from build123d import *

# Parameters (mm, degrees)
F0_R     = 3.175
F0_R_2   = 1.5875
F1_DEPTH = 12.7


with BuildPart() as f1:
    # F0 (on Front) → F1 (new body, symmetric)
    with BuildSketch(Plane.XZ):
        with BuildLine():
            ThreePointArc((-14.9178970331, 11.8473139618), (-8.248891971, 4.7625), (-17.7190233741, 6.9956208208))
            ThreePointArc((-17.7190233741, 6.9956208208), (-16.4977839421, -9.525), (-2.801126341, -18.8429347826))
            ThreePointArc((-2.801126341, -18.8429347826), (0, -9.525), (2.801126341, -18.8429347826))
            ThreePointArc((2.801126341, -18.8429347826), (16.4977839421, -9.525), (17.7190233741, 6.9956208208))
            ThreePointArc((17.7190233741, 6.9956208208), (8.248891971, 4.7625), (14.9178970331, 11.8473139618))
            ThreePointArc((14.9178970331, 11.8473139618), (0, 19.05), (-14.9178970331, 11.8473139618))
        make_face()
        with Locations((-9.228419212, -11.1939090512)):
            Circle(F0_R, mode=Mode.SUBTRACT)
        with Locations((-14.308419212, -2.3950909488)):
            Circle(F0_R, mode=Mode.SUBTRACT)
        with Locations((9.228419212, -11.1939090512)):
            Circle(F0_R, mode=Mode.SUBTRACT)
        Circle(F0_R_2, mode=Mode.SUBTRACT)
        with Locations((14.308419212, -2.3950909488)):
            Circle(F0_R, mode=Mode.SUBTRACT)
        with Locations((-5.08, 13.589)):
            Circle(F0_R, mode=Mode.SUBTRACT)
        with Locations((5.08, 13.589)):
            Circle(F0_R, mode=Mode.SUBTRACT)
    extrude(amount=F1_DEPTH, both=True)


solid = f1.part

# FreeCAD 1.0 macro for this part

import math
import FreeCAD as App
import Part
import Sketcher

V = App.Vector
Q = App.Units.Quantity

doc = App.newDocument("Part")
body = doc.addObject("PartDesign::Body", "Body")

# Sketch on XZ plane
sketch1 = doc.addObject("Sketcher::SketchObject", "Sketch")
body.addObject(sketch1)
sketch1.AttachmentSupport = (doc.XZ_Plane, [""])
sketch1.MapMode = "FlatFace"
sketch1.addGeometry(Part.ArcOfCircle(Part.Circle(V(-12.6, 7.3, 0), V(0, 0, 1), 5.1), math.radians(-177), math.radians(117)), False)
sketch1.addGeometry(Part.ArcOfCircle(Part.Circle(V(0, 0, 0), V(0, 0, 1), 19.1), math.radians(158), math.radians(262)), False)
sketch1.addGeometry(Part.ArcOfCircle(Part.Circle(V(0, -14.6, 0), V(0, 0, 1), 5.1), math.radians(-57), math.radians(237)), False)
sketch1.addGeometry(Part.ArcOfCircle(Part.Circle(V(0, 0, 0), V(0, 0, 1), 19.1), math.radians(-82), math.radians(22)), False)
sketch1.addGeometry(Part.ArcOfCircle(Part.Circle(V(12.6, 7.3, 0), V(0, 0, 1), 5.1), math.radians(63), math.radians(357)), False)
sketch1.addGeometry(Part.ArcOfCircle(Part.Circle(V(0, 0, 0), V(0, 0, 1), 19.1), math.radians(38), math.radians(142)), False)
sketch1.addGeometry(Part.Circle(V(-9.2, -11.2, 0), V(0, 0, 1), 3.2), False)
sketch1.addGeometry(Part.Circle(V(-14.3, -2.4, 0), V(0, 0, 1), 3.2), False)
sketch1.addGeometry(Part.Circle(V(9.2, -11.2, 0), V(0, 0, 1), 3.2), False)
sketch1.addGeometry(Part.Circle(V(0, 0, 0), V(0, 0, 1), 1.6), False)
sketch1.addGeometry(Part.Circle(V(14.3, -2.4, 0), V(0, 0, 1), 3.2), False)
sketch1.addGeometry(Part.Circle(V(-5.1, 13.6, 0), V(0, 0, 1), 3.2), False)
sketch1.addGeometry(Part.Circle(V(5.1, 13.6, 0), V(0, 0, 1), 3.2), False)
sketch1.addConstraint(Sketcher.Constraint("Coincident", 0, 1, 1, 1))
sketch1.addConstraint(Sketcher.Constraint("Coincident", 1, 2, 2, 2))
sketch1.addConstraint(Sketcher.Constraint("Coincident", 2, 1, 3, 1))
sketch1.addConstraint(Sketcher.Constraint("Coincident", 3, 2, 4, 2))
sketch1.addConstraint(Sketcher.Constraint("Coincident", 4, 1, 5, 1))
sketch1.addConstraint(Sketcher.Constraint("Coincident", 5, 2, 0, 2))
sketch1.addConstraint(Sketcher.Constraint("Coincident", 1, 3, -1, 1))
sketch1.addConstraint(Sketcher.Constraint("Coincident", 3, 3, -1, 1))
sketch1.addConstraint(Sketcher.Constraint("Coincident", 5, 3, -1, 1))
sketch1.addConstraint(Sketcher.Constraint("Coincident", 9, 3, -1, 1))
sketch1.addConstraint(Sketcher.Constraint("Equal", 0, 2))
sketch1.addConstraint(Sketcher.Constraint("Equal", 1, 3))
sketch1.addConstraint(Sketcher.Constraint("Equal", 2, 4))
sketch1.addConstraint(Sketcher.Constraint("Equal", 3, 5))
sketch1.addConstraint(Sketcher.Constraint("Equal", 6, 7))
sketch1.addConstraint(Sketcher.Constraint("Equal", 7, 8))
sketch1.addConstraint(Sketcher.Constraint("Equal", 8, 10))
sketch1.addConstraint(Sketcher.Constraint("Equal", 10, 11))
sketch1.addConstraint(Sketcher.Constraint("Equal", 11, 12))
sketch1.addConstraint(Sketcher.Constraint("Symmetric", 0, 3, 4, 3, -2))
sketch1.addConstraint(Sketcher.Constraint("Symmetric", 6, 3, 8, 3, -2))
sketch1.addConstraint(Sketcher.Constraint("Symmetric", 7, 3, 10, 3, -2))
sketch1.addConstraint(Sketcher.Constraint("Symmetric", 11, 3, 12, 3, -2))
sketch1.addConstraint(Sketcher.Constraint("PointOnObject", 2, 3, -2))
sketch1.addConstraint(Sketcher.Constraint("Radius", 0, Q("0.2 in")))
sketch1.addConstraint(Sketcher.Constraint("Diameter", 6, Q("0.25 in")))
sketch1.addConstraint(Sketcher.Constraint("Radius", 1, Q("0.75 in")))
sketch1.addConstraint(Sketcher.Constraint("Diameter", 9, Q("0.125 in")))
sketch1.addConstraint(Sketcher.Constraint("DistanceX", 11, 3, -1, 1, Q("0.2 in")))
sketch1.addConstraint(Sketcher.Constraint("DistanceX", 7, 3, 6, 3, Q("0.2 in")))
sketch1.addConstraint(Sketcher.Constraint("DistanceY", 2, 3, -1, 1, Q("0.575 in")))
sketch1.addConstraint(Sketcher.Constraint("DistanceY", -1, 1, 11, 3, Q("0.535 in")))
sketch1.addConstraint(Sketcher.Constraint("DistanceY", -1, 1, 0, 3, Q("0.2875 in")))
sketch1.addConstraint(Sketcher.Constraint("DistanceX", 0, 3, -1, 1, Q("12.648301 mm")))
sketch1.addConstraint(Sketcher.Constraint("DistanceX", 6, 3, -1, 1, Q("9.228419 mm")))
sketch1.addConstraint(Sketcher.Constraint("DistanceY", 6, 3, -1, 1, Q("11.193909 mm")))
sketch1.addConstraint(Sketcher.Constraint("DistanceY", 7, 3, -1, 1, Q("2.395091 mm")))
pad1 = doc.addObject("PartDesign::Pad", "Pad")
body.addObject(pad1)
pad1.Profile = sketch1
pad1.Length = Q("1 in")
pad1.Midplane = True

doc.recompute()
